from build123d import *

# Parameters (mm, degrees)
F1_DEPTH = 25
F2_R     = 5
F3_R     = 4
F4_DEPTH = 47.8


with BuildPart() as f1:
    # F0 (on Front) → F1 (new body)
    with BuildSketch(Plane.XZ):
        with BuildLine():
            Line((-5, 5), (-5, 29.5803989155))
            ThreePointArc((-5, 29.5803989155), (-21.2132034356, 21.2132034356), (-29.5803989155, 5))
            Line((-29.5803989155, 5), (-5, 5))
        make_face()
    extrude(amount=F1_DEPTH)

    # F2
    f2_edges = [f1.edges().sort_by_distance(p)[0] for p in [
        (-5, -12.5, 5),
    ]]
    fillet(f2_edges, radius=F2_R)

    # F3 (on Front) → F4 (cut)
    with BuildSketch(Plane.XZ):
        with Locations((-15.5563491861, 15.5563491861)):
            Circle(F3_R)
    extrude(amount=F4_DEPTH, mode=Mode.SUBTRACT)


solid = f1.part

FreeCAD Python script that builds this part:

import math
import FreeCAD as App
import Part
import Sketcher
Q = App.Units.Quantity


def edges_at(feature, points):
    """Names of the edges that pass closest to the given points."""
    edges = feature.Shape.Edges
    near = lambda p: min(range(len(edges)), key=lambda i: edges[i].distToShape(Part.Vertex(*p))[0])
    return sorted({f"Edge{near(p) + 1}" for p in points})

doc = App.newDocument("Part")
body = doc.addObject("PartDesign::Body", "Body")

sketch1 = body.newObject("Sketcher::SketchObject", "Sketch")
sketch1.AttachmentSupport = (doc.getObject("XZ_Plane"), [""])
sketch1.MapMode = "FlatFace"
sketch1.addGeometry([
    Part.LineSegment(App.Vector(-5, 5, 0), App.Vector(-5, 30, 0)),
    Part.ArcOfCircle(Part.Circle(App.Vector(0, 0, 0), App.Vector(0, 0, 1), 30), math.radians(100), math.radians(170)),
    Part.LineSegment(App.Vector(-30, 5, 0), App.Vector(-5, 5, 0)),
], False)
sketch1.addConstraint([
    Sketcher.Constraint("Coincident", 0, 2, 1, 1),
    Sketcher.Constraint("Coincident", 1, 2, 2, 1),
    Sketcher.Constraint("Coincident", 2, 2, 0, 1),
    Sketcher.Constraint("Vertical", 0),
    Sketcher.Constraint("Horizontal", 2),
    Sketcher.Constraint("Coincident", 1, 3, -1, 1),
    Sketcher.Constraint("Equal", 2, 0),
    Sketcher.Constraint("Radius", 1, Q("30 mm")),
    Sketcher.Constraint("DistanceX", 0, 2, -1, 1, Q("5 mm")),
])
pad1 = body.newObject("PartDesign::Pad", "Pad")
pad1.Profile = sketch1
pad1.Length = 25
doc.recompute()

fillet = body.newObject("PartDesign::Fillet", "Fillet")
fillet.Base = (pad1, edges_at(pad1, [(-5, -12.5, 5)]))
fillet.Radius = 5

sketch2 = body.newObject("Sketcher::SketchObject", "Sketch001")
sketch2.AttachmentSupport = (doc.getObject("XZ_Plane"), [""])
sketch2.MapMode = "FlatFace"
sketch2.addGeometry(Part.Circle(App.Vector(-15.6, 15.6, 0), App.Vector(0, 0, 1), 4), False)
sketch2.addConstraint([
    Sketcher.Constraint("Diameter", 0, Q("8 mm")),
    Sketcher.Constraint("DistanceX", 0, 3, -1, 1, Q("15.556349 mm")),
    Sketcher.Constraint("DistanceY", -1, 1, 0, 3, Q("15.556349 mm")),
])
pocket1 = body.newObject("PartDesign::Pocket", "Pocket")
pocket1.Profile = sketch2
pocket1.Length = 47.8
pocket1.Reversed = True

doc.recompute()
